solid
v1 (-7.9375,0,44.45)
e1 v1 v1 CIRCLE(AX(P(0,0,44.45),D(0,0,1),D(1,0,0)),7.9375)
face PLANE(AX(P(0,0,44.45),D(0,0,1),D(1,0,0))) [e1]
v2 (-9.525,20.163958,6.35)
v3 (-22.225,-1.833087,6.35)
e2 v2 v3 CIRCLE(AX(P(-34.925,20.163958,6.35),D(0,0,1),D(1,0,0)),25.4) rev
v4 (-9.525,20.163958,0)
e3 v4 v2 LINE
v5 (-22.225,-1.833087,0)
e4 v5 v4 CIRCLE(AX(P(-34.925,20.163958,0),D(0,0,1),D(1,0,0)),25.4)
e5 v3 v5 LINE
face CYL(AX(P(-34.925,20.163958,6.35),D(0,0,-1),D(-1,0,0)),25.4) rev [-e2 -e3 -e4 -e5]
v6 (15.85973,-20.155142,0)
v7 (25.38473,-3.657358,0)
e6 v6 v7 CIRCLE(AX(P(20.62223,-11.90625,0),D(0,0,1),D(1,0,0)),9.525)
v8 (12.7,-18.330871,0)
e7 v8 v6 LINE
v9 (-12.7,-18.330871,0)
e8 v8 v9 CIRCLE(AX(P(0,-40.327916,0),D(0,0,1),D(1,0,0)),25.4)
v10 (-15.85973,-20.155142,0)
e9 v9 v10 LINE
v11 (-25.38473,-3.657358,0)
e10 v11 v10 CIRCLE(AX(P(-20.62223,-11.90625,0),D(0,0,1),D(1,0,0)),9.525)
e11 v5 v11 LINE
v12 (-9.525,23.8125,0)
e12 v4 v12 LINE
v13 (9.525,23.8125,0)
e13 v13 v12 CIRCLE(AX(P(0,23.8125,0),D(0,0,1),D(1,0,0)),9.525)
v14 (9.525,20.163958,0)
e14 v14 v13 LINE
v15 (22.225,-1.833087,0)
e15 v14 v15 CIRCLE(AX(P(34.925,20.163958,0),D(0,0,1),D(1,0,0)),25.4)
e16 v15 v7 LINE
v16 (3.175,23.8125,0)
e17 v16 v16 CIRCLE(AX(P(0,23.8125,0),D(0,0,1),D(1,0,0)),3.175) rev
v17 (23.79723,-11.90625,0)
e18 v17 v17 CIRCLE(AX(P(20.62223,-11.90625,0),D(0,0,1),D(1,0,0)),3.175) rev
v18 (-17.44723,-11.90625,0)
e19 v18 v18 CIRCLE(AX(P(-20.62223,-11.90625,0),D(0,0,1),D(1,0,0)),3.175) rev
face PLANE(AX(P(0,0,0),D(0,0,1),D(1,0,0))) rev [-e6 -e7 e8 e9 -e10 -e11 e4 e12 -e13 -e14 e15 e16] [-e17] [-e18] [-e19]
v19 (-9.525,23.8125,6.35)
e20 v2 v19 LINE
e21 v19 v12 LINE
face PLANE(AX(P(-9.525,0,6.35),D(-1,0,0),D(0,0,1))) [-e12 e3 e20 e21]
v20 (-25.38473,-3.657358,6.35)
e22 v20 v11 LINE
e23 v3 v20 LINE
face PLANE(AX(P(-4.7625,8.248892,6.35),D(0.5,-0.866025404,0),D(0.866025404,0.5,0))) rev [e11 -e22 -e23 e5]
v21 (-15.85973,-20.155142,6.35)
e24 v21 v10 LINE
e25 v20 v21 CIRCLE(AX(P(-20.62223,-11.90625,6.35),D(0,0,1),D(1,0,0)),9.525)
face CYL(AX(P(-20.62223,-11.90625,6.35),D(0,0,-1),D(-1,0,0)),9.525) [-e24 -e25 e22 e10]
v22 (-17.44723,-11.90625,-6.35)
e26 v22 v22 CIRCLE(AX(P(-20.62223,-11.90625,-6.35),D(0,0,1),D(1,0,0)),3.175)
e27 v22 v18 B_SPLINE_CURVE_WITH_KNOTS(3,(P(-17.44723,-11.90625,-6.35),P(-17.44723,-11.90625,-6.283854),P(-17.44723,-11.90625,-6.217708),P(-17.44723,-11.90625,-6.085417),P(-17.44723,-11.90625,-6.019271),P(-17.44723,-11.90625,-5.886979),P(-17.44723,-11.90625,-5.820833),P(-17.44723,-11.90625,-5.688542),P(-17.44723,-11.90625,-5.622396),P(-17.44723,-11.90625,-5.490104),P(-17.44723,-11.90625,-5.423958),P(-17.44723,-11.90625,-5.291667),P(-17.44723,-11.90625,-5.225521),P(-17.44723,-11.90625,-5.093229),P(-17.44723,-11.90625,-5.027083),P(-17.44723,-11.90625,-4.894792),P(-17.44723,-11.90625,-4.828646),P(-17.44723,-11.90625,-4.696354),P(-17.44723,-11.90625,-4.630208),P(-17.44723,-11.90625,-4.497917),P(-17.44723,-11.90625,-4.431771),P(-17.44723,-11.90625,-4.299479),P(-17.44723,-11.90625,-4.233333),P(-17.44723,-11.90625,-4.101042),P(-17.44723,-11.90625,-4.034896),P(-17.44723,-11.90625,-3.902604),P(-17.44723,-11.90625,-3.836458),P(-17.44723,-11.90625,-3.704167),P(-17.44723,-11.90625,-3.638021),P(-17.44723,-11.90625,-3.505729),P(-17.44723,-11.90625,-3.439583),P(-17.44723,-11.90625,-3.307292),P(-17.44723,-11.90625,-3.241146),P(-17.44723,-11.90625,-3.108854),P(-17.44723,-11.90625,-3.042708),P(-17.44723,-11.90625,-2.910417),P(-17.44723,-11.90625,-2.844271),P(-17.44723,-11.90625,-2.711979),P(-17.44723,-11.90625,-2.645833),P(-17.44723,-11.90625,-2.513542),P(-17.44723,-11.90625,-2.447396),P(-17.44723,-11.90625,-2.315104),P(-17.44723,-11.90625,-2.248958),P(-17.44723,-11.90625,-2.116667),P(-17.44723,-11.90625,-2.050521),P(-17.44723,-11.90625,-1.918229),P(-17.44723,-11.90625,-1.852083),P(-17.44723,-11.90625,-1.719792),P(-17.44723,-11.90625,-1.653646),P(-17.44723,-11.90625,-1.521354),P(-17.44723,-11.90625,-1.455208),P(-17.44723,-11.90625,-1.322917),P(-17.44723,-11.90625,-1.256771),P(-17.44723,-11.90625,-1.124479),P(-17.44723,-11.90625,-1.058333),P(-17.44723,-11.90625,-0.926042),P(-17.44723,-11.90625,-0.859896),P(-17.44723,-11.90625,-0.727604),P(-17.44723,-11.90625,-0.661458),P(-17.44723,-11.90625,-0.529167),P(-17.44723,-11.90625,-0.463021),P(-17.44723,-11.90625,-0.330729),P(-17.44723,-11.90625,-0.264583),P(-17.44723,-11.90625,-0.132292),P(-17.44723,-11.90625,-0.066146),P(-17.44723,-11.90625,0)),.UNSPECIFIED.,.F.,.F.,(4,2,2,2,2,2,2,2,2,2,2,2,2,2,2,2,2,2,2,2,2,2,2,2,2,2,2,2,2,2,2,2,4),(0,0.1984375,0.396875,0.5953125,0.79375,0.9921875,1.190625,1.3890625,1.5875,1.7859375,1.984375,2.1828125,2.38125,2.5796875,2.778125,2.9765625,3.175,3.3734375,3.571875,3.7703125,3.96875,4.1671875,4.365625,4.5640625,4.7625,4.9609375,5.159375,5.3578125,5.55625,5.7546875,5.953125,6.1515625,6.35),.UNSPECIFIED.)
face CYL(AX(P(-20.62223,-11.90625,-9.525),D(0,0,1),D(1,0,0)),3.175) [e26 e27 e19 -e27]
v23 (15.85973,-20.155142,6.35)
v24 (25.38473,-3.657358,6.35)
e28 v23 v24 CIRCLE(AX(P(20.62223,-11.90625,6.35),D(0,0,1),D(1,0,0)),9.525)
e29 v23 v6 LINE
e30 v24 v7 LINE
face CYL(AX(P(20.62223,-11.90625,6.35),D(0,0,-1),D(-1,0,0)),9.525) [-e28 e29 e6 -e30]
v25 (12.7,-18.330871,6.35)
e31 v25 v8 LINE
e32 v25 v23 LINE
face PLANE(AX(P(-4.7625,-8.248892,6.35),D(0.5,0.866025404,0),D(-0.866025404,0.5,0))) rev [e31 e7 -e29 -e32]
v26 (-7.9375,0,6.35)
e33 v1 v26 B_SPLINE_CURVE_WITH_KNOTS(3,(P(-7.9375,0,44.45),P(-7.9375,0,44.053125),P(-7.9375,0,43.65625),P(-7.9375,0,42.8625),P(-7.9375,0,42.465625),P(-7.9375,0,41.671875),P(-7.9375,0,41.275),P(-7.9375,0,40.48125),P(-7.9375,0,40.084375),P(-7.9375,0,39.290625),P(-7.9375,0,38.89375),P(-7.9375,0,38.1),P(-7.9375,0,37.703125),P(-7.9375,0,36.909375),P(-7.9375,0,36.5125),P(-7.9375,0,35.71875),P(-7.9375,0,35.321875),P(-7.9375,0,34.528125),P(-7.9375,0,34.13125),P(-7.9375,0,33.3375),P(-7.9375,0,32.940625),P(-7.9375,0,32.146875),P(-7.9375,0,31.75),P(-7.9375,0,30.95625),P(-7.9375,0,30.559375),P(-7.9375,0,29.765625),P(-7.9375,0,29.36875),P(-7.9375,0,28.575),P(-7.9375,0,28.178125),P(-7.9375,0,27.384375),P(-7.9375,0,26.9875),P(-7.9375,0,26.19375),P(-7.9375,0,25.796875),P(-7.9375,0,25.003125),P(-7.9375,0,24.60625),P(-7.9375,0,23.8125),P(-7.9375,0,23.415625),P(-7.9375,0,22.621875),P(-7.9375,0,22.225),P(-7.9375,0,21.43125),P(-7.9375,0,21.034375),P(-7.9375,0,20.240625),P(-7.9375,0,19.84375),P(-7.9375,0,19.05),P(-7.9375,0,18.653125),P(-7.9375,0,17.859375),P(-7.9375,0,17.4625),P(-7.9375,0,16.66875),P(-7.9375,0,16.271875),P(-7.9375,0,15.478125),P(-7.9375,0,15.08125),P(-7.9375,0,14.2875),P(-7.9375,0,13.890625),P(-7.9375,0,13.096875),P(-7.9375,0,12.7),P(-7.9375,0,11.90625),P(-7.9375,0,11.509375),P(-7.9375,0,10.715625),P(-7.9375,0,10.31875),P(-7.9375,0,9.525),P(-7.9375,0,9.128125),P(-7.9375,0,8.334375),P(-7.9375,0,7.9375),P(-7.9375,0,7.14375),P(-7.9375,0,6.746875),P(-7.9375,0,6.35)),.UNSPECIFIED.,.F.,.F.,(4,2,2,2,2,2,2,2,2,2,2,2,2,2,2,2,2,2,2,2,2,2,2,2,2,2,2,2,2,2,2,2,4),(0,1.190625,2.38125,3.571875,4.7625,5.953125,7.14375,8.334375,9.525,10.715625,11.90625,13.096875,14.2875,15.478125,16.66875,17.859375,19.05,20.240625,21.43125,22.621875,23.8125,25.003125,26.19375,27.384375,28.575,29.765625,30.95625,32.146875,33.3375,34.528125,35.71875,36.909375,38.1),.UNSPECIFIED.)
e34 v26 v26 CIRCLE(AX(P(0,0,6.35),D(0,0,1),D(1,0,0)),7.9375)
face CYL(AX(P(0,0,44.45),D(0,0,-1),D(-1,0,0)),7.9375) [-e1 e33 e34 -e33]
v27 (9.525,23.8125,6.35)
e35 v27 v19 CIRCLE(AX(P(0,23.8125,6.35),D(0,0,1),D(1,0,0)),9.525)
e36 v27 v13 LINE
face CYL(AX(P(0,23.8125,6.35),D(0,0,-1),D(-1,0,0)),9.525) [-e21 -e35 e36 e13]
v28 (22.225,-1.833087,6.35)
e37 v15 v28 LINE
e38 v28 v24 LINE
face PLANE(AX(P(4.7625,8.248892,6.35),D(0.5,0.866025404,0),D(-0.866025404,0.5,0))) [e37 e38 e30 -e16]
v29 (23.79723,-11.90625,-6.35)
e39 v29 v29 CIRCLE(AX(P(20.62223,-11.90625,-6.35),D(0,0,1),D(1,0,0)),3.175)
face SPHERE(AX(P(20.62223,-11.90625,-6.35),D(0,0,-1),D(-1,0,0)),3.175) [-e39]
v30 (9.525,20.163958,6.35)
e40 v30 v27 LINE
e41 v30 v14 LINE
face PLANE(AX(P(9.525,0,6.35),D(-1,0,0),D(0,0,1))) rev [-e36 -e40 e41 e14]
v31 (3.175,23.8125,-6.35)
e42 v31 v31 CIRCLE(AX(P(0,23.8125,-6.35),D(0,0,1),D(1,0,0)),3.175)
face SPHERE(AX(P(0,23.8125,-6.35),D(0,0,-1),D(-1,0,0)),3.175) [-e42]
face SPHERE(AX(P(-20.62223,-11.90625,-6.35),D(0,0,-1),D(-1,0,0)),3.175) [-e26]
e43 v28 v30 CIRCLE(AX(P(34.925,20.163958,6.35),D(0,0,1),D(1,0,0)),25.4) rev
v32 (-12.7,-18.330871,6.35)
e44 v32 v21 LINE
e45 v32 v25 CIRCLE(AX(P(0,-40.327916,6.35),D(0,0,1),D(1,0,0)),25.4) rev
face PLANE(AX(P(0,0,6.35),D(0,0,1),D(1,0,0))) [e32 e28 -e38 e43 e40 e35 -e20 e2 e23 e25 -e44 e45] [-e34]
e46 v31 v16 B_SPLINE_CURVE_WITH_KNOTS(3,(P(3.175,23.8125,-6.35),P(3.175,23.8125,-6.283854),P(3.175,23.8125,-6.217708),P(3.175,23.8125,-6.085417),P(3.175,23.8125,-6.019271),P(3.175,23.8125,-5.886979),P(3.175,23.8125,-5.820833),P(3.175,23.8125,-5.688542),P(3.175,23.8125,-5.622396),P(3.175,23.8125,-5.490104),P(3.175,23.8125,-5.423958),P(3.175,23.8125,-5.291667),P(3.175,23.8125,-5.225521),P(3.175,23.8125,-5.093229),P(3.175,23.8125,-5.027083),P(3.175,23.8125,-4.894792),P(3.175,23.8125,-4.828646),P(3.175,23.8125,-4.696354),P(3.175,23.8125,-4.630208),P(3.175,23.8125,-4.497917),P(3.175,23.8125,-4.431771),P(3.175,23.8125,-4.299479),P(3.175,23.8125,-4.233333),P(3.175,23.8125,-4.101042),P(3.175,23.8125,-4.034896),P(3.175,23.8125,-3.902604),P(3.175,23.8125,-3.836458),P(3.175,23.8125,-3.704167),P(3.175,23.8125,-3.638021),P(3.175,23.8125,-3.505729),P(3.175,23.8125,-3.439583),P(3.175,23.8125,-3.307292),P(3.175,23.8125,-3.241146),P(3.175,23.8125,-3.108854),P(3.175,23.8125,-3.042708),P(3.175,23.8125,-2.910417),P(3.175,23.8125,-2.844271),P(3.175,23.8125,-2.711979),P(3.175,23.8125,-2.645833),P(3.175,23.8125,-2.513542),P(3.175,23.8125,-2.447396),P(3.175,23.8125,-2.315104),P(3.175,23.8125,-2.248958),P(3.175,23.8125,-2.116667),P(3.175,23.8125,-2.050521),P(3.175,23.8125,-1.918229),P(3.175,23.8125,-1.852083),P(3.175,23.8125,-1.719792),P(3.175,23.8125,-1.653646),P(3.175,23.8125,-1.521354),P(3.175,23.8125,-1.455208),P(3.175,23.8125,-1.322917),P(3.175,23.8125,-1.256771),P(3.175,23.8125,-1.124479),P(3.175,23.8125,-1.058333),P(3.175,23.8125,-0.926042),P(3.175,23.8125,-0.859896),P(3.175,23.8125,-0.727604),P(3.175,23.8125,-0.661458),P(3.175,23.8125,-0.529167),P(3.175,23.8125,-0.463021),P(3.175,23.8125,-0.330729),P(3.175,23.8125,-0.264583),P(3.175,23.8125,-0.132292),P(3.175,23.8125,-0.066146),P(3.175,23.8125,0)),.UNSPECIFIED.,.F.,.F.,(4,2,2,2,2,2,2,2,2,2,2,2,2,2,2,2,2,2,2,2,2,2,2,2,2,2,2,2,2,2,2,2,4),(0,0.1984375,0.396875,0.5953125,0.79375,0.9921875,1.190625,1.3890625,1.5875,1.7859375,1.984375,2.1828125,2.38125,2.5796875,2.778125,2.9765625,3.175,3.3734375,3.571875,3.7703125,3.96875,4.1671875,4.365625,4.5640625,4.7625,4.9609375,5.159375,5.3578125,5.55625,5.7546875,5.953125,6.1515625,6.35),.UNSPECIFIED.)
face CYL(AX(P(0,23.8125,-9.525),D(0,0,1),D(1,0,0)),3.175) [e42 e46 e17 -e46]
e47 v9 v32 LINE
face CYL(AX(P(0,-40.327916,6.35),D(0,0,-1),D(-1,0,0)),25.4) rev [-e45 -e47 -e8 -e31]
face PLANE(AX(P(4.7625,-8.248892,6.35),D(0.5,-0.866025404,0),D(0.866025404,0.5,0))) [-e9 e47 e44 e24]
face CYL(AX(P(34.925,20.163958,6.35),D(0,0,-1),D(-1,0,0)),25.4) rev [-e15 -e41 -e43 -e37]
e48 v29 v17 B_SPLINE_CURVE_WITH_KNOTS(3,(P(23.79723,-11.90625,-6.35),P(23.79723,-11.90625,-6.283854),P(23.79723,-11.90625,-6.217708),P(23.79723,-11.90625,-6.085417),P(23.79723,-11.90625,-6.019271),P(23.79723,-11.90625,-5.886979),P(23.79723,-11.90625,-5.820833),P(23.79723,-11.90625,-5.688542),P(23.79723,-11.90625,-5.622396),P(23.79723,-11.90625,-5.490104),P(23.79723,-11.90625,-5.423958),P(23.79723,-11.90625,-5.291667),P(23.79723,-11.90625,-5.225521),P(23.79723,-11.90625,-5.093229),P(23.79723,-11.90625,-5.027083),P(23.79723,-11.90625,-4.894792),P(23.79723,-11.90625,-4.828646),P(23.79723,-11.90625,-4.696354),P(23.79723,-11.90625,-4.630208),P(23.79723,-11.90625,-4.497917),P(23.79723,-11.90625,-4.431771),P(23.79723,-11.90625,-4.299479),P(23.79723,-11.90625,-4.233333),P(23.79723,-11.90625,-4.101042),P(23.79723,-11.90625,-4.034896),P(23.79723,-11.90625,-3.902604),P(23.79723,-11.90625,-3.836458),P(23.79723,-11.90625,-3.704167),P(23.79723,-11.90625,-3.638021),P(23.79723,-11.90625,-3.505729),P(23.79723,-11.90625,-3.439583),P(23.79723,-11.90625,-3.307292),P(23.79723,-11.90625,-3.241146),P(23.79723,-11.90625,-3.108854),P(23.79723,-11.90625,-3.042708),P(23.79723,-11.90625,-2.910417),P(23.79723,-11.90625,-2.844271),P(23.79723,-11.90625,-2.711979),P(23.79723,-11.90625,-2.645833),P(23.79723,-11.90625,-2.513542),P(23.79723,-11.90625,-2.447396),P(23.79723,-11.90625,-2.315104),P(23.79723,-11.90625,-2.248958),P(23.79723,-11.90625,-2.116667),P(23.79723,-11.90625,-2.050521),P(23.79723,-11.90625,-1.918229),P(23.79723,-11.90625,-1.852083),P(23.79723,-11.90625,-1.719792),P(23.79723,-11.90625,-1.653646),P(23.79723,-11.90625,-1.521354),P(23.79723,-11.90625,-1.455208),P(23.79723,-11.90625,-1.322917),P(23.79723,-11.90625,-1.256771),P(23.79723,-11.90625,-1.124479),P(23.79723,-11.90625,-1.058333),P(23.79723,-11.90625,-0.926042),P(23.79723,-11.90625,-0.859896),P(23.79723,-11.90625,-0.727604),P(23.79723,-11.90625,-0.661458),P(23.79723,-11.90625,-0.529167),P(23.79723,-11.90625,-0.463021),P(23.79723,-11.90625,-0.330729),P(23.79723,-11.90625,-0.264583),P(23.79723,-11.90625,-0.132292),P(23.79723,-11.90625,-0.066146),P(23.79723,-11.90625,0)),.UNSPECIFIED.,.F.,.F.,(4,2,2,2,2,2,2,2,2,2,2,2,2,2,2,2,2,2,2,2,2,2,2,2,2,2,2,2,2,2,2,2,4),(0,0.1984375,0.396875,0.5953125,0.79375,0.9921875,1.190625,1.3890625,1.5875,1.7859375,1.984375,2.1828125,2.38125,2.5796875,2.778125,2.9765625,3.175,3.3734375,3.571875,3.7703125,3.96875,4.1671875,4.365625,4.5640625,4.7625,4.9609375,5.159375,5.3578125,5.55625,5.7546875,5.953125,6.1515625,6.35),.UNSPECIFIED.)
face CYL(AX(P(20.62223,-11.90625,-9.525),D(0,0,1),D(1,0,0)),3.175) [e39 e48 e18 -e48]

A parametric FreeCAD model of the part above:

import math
import FreeCAD as App
import Part
import Sketcher
Q = App.Units.Quantity


def edges_at(feature, points):
    """Names of the edges that pass closest to the given points."""
    edges = feature.Shape.Edges
    near = lambda p: min(range(len(edges)), key=lambda i: edges[i].distToShape(Part.Vertex(*p))[0])
    return sorted({f"Edge{near(p) + 1}" for p in points})

doc = App.newDocument("Part")
body = doc.addObject("PartDesign::Body", "Body")

sketch1 = body.newObject("Sketcher::SketchObject", "Sketch")
sketch1.AttachmentSupport = (doc.getObject("XY_Plane"), [""])
sketch1.MapMode = "FlatFace"
sketch1.addGeometry(Part.LineSegment(App.Vector(-16, -20, 0), App.Vector(0, -11, 0)), False)
sketch1.addGeometry(Part.LineSegment(App.Vector(0, -11, 0), App.Vector(16, -20, 0)), False)
sketch1.addGeometry(Part.ArcOfCircle(Part.Circle(App.Vector(21, -12, 0), App.Vector(0, 0, 1), 10), math.radians(-120), math.radians(60)), False)
sketch1.addGeometry(Part.LineSegment(App.Vector(25, -4, 0), App.Vector(10, 5, 0)), False)
sketch1.addGeometry(Part.LineSegment(App.Vector(10, 5, 0), App.Vector(10, 24, 0)), False)
sketch1.addGeometry(Part.ArcOfCircle(Part.Circle(App.Vector(0, 24, 0), App.Vector(0, 0, 1), 10), math.radians(0), math.radians(180)), False)
sketch1.addGeometry(Part.LineSegment(App.Vector(-10, 24, 0), App.Vector(-10, 5, 0)), False)
sketch1.addGeometry(Part.LineSegment(App.Vector(-10, 5, 0), App.Vector(-25, -4, 0)), False)
sketch1.addGeometry(Part.ArcOfCircle(Part.Circle(App.Vector(-21, -12, 0), App.Vector(0, 0, 1), 10), math.radians(120), math.radians(300)), False)
sketch1.addConstraint(Sketcher.Constraint("Coincident", 0, 2, 1, 1))
sketch1.addConstraint(Sketcher.Constraint("Tangent", 1, 2, 2, 1))
sketch1.addConstraint(Sketcher.Constraint("Tangent", 2, 2, 3, 1))
sketch1.addConstraint(Sketcher.Constraint("Coincident", 3, 2, 4, 1))
sketch1.addConstraint(Sketcher.Constraint("Tangent", 4, 2, 5, 1))
sketch1.addConstraint(Sketcher.Constraint("Tangent", 5, 2, 6, 1))
sketch1.addConstraint(Sketcher.Constraint("Coincident", 6, 2, 7, 1))
sketch1.addConstraint(Sketcher.Constraint("Tangent", 7, 2, 8, 1))
sketch1.addConstraint(Sketcher.Constraint("Tangent", 8, 2, 0, 1))
sketch1.addConstraint(Sketcher.Constraint("Vertical", 4))
sketch1.addConstraint(Sketcher.Constraint("Vertical", 6))
sketch1.addConstraint(Sketcher.Constraint("Equal", 2, 5))
sketch1.addConstraint(Sketcher.Constraint("Equal", 5, 8))
sketch1.addConstraint(Sketcher.Constraint("Symmetric", 2, 3, 8, 3, -2))
sketch1.addConstraint(Sketcher.Constraint("Symmetric", 3, 2, 6, 2, -2))
sketch1.addConstraint(Sketcher.Constraint("PointOnObject", 0, 2, -2))
sketch1.addConstraint(Sketcher.Constraint("Parallel", 1, 3))
sketch1.addConstraint(Sketcher.Constraint("Equal", 1, 3))
sketch1.addConstraint(Sketcher.Constraint("Radius", 2, Q("0.375 in")))
sketch1.addConstraint(Sketcher.Constraint("DistanceY", 2, 3, -1, 1, Q("0.46875 in")))
sketch1.addConstraint(Sketcher.Constraint("DistanceY", -1, 1, 5, 3, Q("0.9375 in")))
sketch1.addConstraint(Sketcher.Constraint("DistanceY", 4, 1, 4, 2, Q("18.313239 mm")))
pad1 = body.newObject("PartDesign::Pad", "Pad")
pad1.Profile = sketch1
pad1.Length = Q("0.25 in")
doc.recompute()

fillet = body.newObject("PartDesign::Fillet", "Fillet")
fillet.Base = (pad1, edges_at(pad1, [(-9.525, 5.499, 3.175), (9.525, 5.499, 3.175), (0, -10.999, 3.175)]))
fillet.Radius = Q("1 in")

sketch2 = body.newObject("Sketcher::SketchObject", "Sketch001")
sketch2.AttachmentSupport = (doc.getObject("XY_Plane"), [""])
sketch2.MapMode = "FlatFace"
sketch2.addGeometry(Part.Circle(App.Vector(0, 23.8, 0), App.Vector(0, 0, 1), 3.2), False)
sketch2.addGeometry(Part.Circle(App.Vector(-20.6, -11.9, 0), App.Vector(0, 0, 1), 3.2), False)
sketch2.addGeometry(Part.Circle(App.Vector(20.6, -11.9, 0), App.Vector(0, 0, 1), 3.2), False)
sketch2.addConstraint(Sketcher.Constraint("Equal", 0, 1))
sketch2.addConstraint(Sketcher.Constraint("Equal", 1, 2))
sketch2.addConstraint(Sketcher.Constraint("Symmetric", 1, 3, 2, 3, -2))
sketch2.addConstraint(Sketcher.Constraint("PointOnObject", 0, 3, -2))
sketch2.addConstraint(Sketcher.Constraint("Diameter", 0, Q("0.25 in")))
sketch2.addConstraint(Sketcher.Constraint("DistanceY", -1, 1, 0, 3, Q("0.9375 in")))
sketch2.addConstraint(Sketcher.Constraint("DistanceY", 1, 3, -1, 1, Q("0.46875 in")))
sketch2.addConstraint(Sketcher.Constraint("DistanceX", 1, 3, -1, 1, Q("20.62223 mm")))
pad2 = body.newObject("PartDesign::Pad", "Pad001")
pad2.Profile = sketch2
pad2.Length = Q("0.375 in")
pad2.Reversed = True
doc.recompute()

fillet2 = body.newObject("PartDesign::Fillet", "Fillet001")
fillet2.Base = (pad2, edges_at(pad2, [(-3.175, 23.812, -9.525), (-23.797, -11.906, -9.525), (17.447, -11.906, -9.525)]))
fillet2.Radius = Q("0.125 in")

sketch3 = body.newObject("Sketcher::SketchObject", "Sketch002")
sketch3.AttachmentSupport = (doc.getObject("XY_Plane"), [""])
sketch3.MapMode = "FlatFace"
sketch3.AttachmentOffset = App.Placement(App.Vector(0, 0, 0.25 * 25.4), App.Rotation())
sketch3.addGeometry(Part.Circle(App.Vector(0, 0, 0), App.Vector(0, 0, 1), 8), False)
sketch3.addConstraint(Sketcher.Constraint("Coincident", 0, 3, -1, 1))
sketch3.addConstraint(Sketcher.Constraint("Diameter", 0, Q("0.625 in")))
pad3 = body.newObject("PartDesign::Pad", "Pad002")
pad3.Profile = sketch3
pad3.Length = Q("1.5 in")

doc.recompute()
